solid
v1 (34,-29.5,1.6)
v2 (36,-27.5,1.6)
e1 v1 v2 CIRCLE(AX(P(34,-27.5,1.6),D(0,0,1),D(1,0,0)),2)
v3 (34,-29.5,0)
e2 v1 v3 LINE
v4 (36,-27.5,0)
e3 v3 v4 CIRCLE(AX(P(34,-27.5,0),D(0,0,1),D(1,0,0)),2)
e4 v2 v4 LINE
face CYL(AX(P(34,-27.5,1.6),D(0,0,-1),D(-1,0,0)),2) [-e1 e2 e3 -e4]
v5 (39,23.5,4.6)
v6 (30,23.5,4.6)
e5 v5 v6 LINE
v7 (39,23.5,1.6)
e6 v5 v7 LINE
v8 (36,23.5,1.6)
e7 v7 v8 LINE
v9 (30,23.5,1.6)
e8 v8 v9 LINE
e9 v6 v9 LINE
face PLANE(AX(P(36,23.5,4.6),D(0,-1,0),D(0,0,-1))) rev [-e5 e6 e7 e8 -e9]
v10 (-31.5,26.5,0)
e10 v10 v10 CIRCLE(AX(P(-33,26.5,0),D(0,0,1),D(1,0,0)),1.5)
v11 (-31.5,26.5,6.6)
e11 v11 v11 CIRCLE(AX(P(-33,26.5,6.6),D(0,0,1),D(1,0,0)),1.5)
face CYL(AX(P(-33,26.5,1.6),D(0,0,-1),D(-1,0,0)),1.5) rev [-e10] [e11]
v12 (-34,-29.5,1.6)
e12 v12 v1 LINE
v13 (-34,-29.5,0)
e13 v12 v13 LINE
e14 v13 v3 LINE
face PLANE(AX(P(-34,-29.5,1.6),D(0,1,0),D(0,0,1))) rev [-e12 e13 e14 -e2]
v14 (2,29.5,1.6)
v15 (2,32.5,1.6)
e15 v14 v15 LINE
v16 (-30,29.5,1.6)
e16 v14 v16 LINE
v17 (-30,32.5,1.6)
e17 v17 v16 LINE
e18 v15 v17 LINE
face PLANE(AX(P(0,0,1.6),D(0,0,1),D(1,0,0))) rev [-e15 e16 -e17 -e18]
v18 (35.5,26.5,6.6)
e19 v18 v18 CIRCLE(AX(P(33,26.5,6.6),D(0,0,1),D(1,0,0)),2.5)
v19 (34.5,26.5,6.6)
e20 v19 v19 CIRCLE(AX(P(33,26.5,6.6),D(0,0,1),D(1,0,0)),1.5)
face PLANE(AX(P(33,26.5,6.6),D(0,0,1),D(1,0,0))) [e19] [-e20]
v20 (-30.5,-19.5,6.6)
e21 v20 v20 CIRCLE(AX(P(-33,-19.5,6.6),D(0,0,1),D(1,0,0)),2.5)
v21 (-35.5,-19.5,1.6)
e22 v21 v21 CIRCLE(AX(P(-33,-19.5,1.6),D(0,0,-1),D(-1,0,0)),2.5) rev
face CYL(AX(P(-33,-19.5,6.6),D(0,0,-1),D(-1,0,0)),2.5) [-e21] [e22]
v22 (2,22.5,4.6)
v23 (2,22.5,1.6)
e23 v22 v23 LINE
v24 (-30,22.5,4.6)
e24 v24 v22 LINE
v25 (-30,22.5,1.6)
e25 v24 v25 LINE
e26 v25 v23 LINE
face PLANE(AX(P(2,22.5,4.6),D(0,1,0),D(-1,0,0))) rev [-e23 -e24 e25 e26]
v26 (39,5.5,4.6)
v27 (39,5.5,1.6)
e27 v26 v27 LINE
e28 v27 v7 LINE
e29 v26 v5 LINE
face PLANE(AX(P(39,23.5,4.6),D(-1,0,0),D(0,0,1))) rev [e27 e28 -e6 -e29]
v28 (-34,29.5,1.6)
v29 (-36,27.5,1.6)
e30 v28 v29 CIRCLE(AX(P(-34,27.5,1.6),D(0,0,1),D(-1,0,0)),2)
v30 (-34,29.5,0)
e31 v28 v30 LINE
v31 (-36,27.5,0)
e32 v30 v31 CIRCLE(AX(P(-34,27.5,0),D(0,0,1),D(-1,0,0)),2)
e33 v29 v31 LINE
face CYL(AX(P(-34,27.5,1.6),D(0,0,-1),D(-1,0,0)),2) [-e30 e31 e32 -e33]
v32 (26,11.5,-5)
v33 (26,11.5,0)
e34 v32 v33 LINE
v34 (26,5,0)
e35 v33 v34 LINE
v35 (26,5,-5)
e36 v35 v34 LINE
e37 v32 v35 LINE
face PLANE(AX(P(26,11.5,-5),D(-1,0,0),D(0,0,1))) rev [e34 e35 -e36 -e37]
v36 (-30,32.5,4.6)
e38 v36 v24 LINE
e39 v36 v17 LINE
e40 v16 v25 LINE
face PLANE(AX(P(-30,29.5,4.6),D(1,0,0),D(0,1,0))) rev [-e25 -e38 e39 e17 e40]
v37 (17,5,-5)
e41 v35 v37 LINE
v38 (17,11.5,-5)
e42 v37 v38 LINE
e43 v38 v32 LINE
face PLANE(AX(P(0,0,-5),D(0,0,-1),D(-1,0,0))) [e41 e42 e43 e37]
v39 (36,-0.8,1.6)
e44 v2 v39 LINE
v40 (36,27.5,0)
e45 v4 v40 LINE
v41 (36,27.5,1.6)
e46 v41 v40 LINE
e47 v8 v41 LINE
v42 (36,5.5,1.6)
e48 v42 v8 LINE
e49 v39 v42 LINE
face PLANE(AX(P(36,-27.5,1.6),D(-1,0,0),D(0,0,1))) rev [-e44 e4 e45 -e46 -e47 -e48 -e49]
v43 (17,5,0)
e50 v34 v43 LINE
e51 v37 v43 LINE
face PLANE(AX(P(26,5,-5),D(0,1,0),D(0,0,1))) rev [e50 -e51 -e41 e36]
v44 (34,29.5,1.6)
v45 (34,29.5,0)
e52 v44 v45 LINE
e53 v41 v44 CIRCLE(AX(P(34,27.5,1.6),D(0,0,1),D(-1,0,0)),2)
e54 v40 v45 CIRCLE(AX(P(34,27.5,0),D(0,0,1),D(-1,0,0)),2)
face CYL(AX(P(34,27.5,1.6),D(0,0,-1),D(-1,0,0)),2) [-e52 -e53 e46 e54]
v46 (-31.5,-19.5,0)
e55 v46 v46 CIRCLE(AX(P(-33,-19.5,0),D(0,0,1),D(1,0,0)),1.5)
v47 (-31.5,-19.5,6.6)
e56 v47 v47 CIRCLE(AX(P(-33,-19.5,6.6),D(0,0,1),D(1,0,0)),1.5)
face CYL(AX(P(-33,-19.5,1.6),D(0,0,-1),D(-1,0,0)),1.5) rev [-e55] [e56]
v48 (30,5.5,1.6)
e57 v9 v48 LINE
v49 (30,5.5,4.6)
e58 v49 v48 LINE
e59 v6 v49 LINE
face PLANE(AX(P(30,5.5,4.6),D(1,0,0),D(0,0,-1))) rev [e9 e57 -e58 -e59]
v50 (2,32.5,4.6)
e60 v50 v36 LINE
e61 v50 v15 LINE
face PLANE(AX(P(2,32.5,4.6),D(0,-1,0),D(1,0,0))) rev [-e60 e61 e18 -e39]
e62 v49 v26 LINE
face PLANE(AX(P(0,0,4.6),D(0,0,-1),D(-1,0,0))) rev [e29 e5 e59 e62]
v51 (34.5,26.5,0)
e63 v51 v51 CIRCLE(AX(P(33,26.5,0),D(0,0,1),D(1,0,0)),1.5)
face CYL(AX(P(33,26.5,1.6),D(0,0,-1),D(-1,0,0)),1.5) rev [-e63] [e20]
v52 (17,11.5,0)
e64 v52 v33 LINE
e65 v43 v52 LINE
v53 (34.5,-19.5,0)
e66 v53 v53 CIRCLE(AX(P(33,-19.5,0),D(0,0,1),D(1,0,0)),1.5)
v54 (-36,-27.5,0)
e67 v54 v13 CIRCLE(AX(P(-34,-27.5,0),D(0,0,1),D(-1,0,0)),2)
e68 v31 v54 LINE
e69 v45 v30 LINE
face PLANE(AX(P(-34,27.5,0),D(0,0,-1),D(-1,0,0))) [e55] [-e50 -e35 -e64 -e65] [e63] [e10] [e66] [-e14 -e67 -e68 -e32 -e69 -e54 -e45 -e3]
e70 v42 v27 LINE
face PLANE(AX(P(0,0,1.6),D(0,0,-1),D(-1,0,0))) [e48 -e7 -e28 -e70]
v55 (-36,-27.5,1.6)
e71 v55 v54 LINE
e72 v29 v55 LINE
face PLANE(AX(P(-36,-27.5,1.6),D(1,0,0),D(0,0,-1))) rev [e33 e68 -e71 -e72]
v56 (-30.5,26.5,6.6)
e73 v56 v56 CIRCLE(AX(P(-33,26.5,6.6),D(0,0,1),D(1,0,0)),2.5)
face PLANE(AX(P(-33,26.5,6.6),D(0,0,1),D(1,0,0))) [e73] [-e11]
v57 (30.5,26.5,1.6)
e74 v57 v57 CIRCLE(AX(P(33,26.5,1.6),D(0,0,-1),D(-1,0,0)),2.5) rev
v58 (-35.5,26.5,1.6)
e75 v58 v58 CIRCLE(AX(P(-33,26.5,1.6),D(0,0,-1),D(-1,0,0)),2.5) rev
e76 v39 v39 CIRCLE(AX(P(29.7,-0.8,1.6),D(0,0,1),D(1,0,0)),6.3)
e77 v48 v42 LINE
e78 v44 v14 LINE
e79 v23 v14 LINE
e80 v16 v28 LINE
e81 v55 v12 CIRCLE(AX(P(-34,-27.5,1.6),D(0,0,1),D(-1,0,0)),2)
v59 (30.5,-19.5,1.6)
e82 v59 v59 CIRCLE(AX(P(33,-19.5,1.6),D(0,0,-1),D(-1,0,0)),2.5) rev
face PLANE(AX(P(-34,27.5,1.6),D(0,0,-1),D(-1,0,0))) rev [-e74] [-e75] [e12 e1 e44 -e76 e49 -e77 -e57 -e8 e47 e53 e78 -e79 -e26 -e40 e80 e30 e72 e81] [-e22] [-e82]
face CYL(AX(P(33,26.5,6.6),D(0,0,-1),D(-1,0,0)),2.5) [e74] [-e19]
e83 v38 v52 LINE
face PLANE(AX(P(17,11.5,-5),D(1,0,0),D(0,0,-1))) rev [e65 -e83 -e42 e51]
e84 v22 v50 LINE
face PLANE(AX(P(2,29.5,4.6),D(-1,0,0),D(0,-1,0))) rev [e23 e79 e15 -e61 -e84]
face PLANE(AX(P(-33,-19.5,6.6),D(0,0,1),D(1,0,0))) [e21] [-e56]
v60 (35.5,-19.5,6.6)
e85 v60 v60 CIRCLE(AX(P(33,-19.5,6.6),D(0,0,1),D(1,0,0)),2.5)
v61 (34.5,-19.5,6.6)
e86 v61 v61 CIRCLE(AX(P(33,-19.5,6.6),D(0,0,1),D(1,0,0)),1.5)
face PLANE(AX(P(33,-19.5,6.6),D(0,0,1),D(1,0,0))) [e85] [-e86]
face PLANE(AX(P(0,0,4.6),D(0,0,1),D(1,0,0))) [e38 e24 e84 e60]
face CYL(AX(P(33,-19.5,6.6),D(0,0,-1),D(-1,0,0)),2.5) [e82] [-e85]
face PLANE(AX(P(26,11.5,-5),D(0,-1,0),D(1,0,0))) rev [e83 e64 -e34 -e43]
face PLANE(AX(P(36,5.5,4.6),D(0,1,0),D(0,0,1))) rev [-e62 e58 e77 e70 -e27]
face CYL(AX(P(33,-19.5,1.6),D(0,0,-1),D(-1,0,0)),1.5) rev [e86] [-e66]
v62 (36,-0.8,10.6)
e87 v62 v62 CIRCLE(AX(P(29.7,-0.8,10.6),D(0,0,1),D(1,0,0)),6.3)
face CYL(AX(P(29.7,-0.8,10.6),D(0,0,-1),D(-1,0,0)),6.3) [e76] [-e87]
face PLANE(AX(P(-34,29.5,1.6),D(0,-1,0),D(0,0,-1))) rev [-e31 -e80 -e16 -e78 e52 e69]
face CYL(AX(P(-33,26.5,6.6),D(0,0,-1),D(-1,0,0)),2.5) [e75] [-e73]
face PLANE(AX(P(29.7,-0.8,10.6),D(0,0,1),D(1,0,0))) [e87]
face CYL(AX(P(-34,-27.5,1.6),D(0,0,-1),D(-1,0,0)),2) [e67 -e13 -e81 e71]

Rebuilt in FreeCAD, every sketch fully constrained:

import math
import FreeCAD as App
import Part
import Sketcher

V = App.Vector

doc = App.newDocument("Part")
body = doc.addObject("PartDesign::Body", "Body")

sketch1 = body.newObject("Sketcher::SketchObject", "Sketch")
sketch1.AttachmentSupport = (doc.getObject("XY_Plane"), [""])
sketch1.MapMode = "FlatFace"
sketch1.addGeometry(Part.LineSegment(V(-34, -29.5, 0), V(34, -29.5, 0)), False)
sketch1.addGeometry(Part.ArcOfCircle(Part.Circle(V(34, -27.5, 0), V(0, 0, 1), 2), math.radians(-90), math.radians(0)), False)
sketch1.addGeometry(Part.LineSegment(V(36, -27.5, 0), V(36, 27.5, 0)), False)
sketch1.addGeometry(Part.ArcOfCircle(Part.Circle(V(34, 27.5, 0), V(0, 0, 1), 2), math.radians(0), math.radians(90)), False)
sketch1.addGeometry(Part.LineSegment(V(34, 29.5, 0), V(-34, 29.5, 0)), False)
sketch1.addGeometry(Part.ArcOfCircle(Part.Circle(V(-34, 27.5, 0), V(0, 0, 1), 2), math.radians(90), math.radians(180)), False)
sketch1.addGeometry(Part.LineSegment(V(-36, 27.5, 0), V(-36, -27.5, 0)), False)
sketch1.addGeometry(Part.ArcOfCircle(Part.Circle(V(-34, -27.5, 0), V(0, 0, 1), 2), math.radians(-180), math.radians(-90)), False)
sketch1.addGeometry(Part.Circle(V(-33, -19.5, 0), V(0, 0, 1), 1.5), False)
sketch1.addGeometry(Part.Circle(V(33, -19.5, 0), V(0, 0, 1), 1.5), False)
sketch1.addGeometry(Part.Circle(V(-33, 26.5, 0), V(0, 0, 1), 1.5), False)
sketch1.addGeometry(Part.Circle(V(33, 26.5, 0), V(0, 0, 1), 1.5), False)
sketch1.addConstraint(Sketcher.Constraint("Tangent", 0, 2, 1, 1))
sketch1.addConstraint(Sketcher.Constraint("Tangent", 1, 2, 2, 1))
sketch1.addConstraint(Sketcher.Constraint("Tangent", 2, 2, 3, 1))
sketch1.addConstraint(Sketcher.Constraint("Tangent", 3, 2, 4, 1))
sketch1.addConstraint(Sketcher.Constraint("Tangent", 4, 2, 5, 1))
sketch1.addConstraint(Sketcher.Constraint("Tangent", 5, 2, 6, 1))
sketch1.addConstraint(Sketcher.Constraint("Tangent", 6, 2, 7, 1))
sketch1.addConstraint(Sketcher.Constraint("Tangent", 7, 2, 0, 1))
sketch1.addConstraint(Sketcher.Constraint("Horizontal", 0))
sketch1.addConstraint(Sketcher.Constraint("Vertical", 2))
sketch1.addConstraint(Sketcher.Constraint("Horizontal", 4))
sketch1.addConstraint(Sketcher.Constraint("Vertical", 6))
sketch1.addConstraint(Sketcher.Constraint("Equal", 1, 3))
sketch1.addConstraint(Sketcher.Constraint("Equal", 3, 5))
sketch1.addConstraint(Sketcher.Constraint("Equal", 5, 7))
sketch1.addConstraint(Sketcher.Constraint("Equal", 8, 9))
sketch1.addConstraint(Sketcher.Constraint("Equal", 9, 10))
sketch1.addConstraint(Sketcher.Constraint("Equal", 10, 11))
sketch1.addConstraint(Sketcher.Constraint("Symmetric", 1, 3, 5, 3, -1, 1))
sketch1.addConstraint(Sketcher.Constraint("Symmetric", 8, 3, 9, 3, -2))
sketch1.addConstraint(Sketcher.Constraint("Symmetric", 10, 3, 11, 3, -2))
sketch1.addConstraint(Sketcher.Constraint("Vertical", 8, 3, 10, 3))
sketch1.addConstraint(Sketcher.Constraint("Diameter", 8, 3.0))
sketch1.addConstraint(Sketcher.Constraint("Radius", 1, 2.0))
sketch1.addConstraint(Sketcher.Constraint("DistanceX", 0, 1, 0, 2, 68.0))
sketch1.addConstraint(Sketcher.Constraint("DistanceY", 2, 1, 2, 2, 55.0))
sketch1.addConstraint(Sketcher.Constraint("DistanceX", 8, 3, -1, 1, 33.0))
sketch1.addConstraint(Sketcher.Constraint("DistanceY", 7, 3, 8, 3, 8.0))
sketch1.addConstraint(Sketcher.Constraint("DistanceY", 10, 3, 5, 3, 1.0))
pad1 = body.newObject("PartDesign::Pad", "Pad")
pad1.Profile = sketch1
pad1.Length = 1.6

sketch2 = body.newObject("Sketcher::SketchObject", "Sketch001")
sketch2.AttachmentSupport = (doc.getObject("XY_Plane"), [""])
sketch2.MapMode = "FlatFace"
sketch2.AttachmentOffset = App.Placement(V(0, 0, 1.6), App.Rotation())
sketch2.addGeometry(Part.Circle(V(33, 26.5, 0), V(0, 0, 1), 2.5), False)
sketch2.addGeometry(Part.Circle(V(33, 26.5, 0), V(0, 0, 1), 1.5), False)
sketch2.addGeometry(Part.Circle(V(-33, 26.5, 0), V(0, 0, 1), 2.5), False)
sketch2.addGeometry(Part.Circle(V(-33, 26.5, 0), V(0, 0, 1), 1.5), False)
sketch2.addGeometry(Part.Circle(V(-33, -19.5, 0), V(0, 0, 1), 2.5), False)
sketch2.addGeometry(Part.Circle(V(-33, -19.5, 0), V(0, 0, 1), 1.5), False)
sketch2.addGeometry(Part.Circle(V(33, -19.5, 0), V(0, 0, 1), 2.5), False)
sketch2.addGeometry(Part.Circle(V(33, -19.5, 0), V(0, 0, 1), 1.5), False)
sketch2.addConstraint(Sketcher.Constraint("Coincident", 1, 3, 0, 3))
sketch2.addConstraint(Sketcher.Constraint("Coincident", 3, 3, 2, 3))
sketch2.addConstraint(Sketcher.Constraint("Coincident", 5, 3, 4, 3))
sketch2.addConstraint(Sketcher.Constraint("Coincident", 7, 3, 6, 3))
sketch2.addConstraint(Sketcher.Constraint("Equal", 0, 2))
sketch2.addConstraint(Sketcher.Constraint("Equal", 1, 3))
sketch2.addConstraint(Sketcher.Constraint("Equal", 2, 4))
sketch2.addConstraint(Sketcher.Constraint("Equal", 3, 5))
sketch2.addConstraint(Sketcher.Constraint("Equal", 4, 6))
sketch2.addConstraint(Sketcher.Constraint("Equal", 5, 7))
sketch2.addConstraint(Sketcher.Constraint("Symmetric", 0, 3, 2, 3, -2))
sketch2.addConstraint(Sketcher.Constraint("Symmetric", 4, 3, 6, 3, -2))
sketch2.addConstraint(Sketcher.Constraint("Vertical", 3, 3, 4, 3))
sketch2.addConstraint(Sketcher.Constraint("Diameter", 0, 5.0))
sketch2.addConstraint(Sketcher.Constraint("Diameter", 1, 3.0))
sketch2.addConstraint(Sketcher.Constraint("DistanceX", -1, 1, 0, 3, 33.0))
sketch2.addConstraint(Sketcher.Constraint("DistanceY", 4, 3, 2, 3, 46.0))
sketch2.addConstraint(Sketcher.Constraint("DistanceY", -1, 1, 0, 3, 26.5))
pad2 = body.newObject("PartDesign::Pad", "Pad001")
pad2.Profile = sketch2
pad2.Length = 5

sketch3 = body.newObject("Sketcher::SketchObject", "Sketch002")
sketch3.AttachmentSupport = (doc.getObject("XY_Plane"), [""])
sketch3.MapMode = "FlatFace"
sketch3.AttachmentOffset = App.Placement(V(0, 0, 1.6), App.Rotation())
sketch3.addGeometry(Part.Circle(V(30, -1, 0), V(0, 0, 1), 6), False)
sketch3.addConstraint(Sketcher.Constraint("Diameter", 0, 12.6))
sketch3.addConstraint(Sketcher.Constraint("DistanceX", -1, 1, 0, 3, 29.7))
sketch3.addConstraint(Sketcher.Constraint("DistanceY", 0, 3, -1, 1, 0.8))
pad3 = body.newObject("PartDesign::Pad", "Pad002")
pad3.Profile = sketch3
pad3.Length = 9

sketch4 = body.newObject("Sketcher::SketchObject", "Sketch003")
sketch4.AttachmentSupport = (doc.getObject("XY_Plane"), [""])
sketch4.MapMode = "FlatFace"
sketch4.AttachmentOffset = App.Placement(V(0, 0, 1.6), App.Rotation())
sketch4.addGeometry(Part.LineSegment(V(30, 6, 0), V(39, 6, 0)), False)
sketch4.addGeometry(Part.LineSegment(V(39, 6, 0), V(39, 24, 0)), False)
sketch4.addGeometry(Part.LineSegment(V(39, 24, 0), V(30, 24, 0)), False)
sketch4.addGeometry(Part.LineSegment(V(30, 24, 0), V(30, 6, 0)), False)
sketch4.addGeometry(Part.LineSegment(V(2, 22, 0), V(2, 32, 0)), False)
sketch4.addGeometry(Part.LineSegment(V(2, 32, 0), V(-30, 32, 0)), False)
sketch4.addGeometry(Part.LineSegment(V(-30, 32, 0), V(-30, 22, 0)), False)
sketch4.addGeometry(Part.LineSegment(V(-30, 22, 0), V(2, 22, 0)), False)
sketch4.addConstraint(Sketcher.Constraint("Coincident", 0, 2, 1, 1))
sketch4.addConstraint(Sketcher.Constraint("Coincident", 1, 2, 2, 1))
sketch4.addConstraint(Sketcher.Constraint("Coincident", 2, 2, 3, 1))
sketch4.addConstraint(Sketcher.Constraint("Coincident", 3, 2, 0, 1))
sketch4.addConstraint(Sketcher.Constraint("Coincident", 4, 2, 5, 1))
sketch4.addConstraint(Sketcher.Constraint("Coincident", 5, 2, 6, 1))
sketch4.addConstraint(Sketcher.Constraint("Coincident", 6, 2, 7, 1))
sketch4.addConstraint(Sketcher.Constraint("Coincident", 7, 2, 4, 1))
sketch4.addConstraint(Sketcher.Constraint("Horizontal", 0))
sketch4.addConstraint(Sketcher.Constraint("Vertical", 1))
sketch4.addConstraint(Sketcher.Constraint("Horizontal", 2))
sketch4.addConstraint(Sketcher.Constraint("Vertical", 3))
sketch4.addConstraint(Sketcher.Constraint("Vertical", 4))
sketch4.addConstraint(Sketcher.Constraint("Horizontal", 5))
sketch4.addConstraint(Sketcher.Constraint("Vertical", 6))
sketch4.addConstraint(Sketcher.Constraint("Horizontal", 7))
sketch4.addConstraint(Sketcher.Constraint("DistanceX", 0, 1, 0, 2, 9.0))
sketch4.addConstraint(Sketcher.Constraint("DistanceX", 5, 2, 5, 1, 32.0))
sketch4.addConstraint(Sketcher.Constraint("DistanceY", 1, 1, 1, 2, 18.0))
sketch4.addConstraint(Sketcher.Constraint("DistanceY", 4, 1, 4, 2, 10.0))
sketch4.addConstraint(Sketcher.Constraint("DistanceX", -1, 1, 0, 2, 39.0))
sketch4.addConstraint(Sketcher.Constraint("DistanceX", -1, 1, 4, 2, 2.0))
sketch4.addConstraint(Sketcher.Constraint("DistanceY", 2, 2, 4, 2, 9.0))
sketch4.addConstraint(Sketcher.Constraint("DistanceY", -1, 1, 0, 2, 5.5))
pad4 = body.newObject("PartDesign::Pad", "Pad003")
pad4.Profile = sketch4
pad4.Length = 3

sketch5 = body.newObject("Sketcher::SketchObject", "Sketch004")
sketch5.AttachmentSupport = (doc.getObject("XY_Plane"), [""])
sketch5.MapMode = "FlatFace"
sketch5.addGeometry(Part.LineSegment(V(26, 12, 0), V(26, 5, 0)), False)
sketch5.addGeometry(Part.LineSegment(V(26, 5, 0), V(17, 5, 0)), False)
sketch5.addGeometry(Part.LineSegment(V(17, 5, 0), V(17, 12, 0)), False)
sketch5.addGeometry(Part.LineSegment(V(17, 12, 0), V(26, 12, 0)), False)
sketch5.addConstraint(Sketcher.Constraint("Coincident", 0, 2, 1, 1))
sketch5.addConstraint(Sketcher.Constraint("Coincident", 1, 2, 2, 1))
sketch5.addConstraint(Sketcher.Constraint("Coincident", 2, 2, 3, 1))
sketch5.addConstraint(Sketcher.Constraint("Coincident", 3, 2, 0, 1))
sketch5.addConstraint(Sketcher.Constraint("Vertical", 0))
sketch5.addConstraint(Sketcher.Constraint("Horizontal", 1))
sketch5.addConstraint(Sketcher.Constraint("Vertical", 2))
sketch5.addConstraint(Sketcher.Constraint("Horizontal", 3))
sketch5.addConstraint(Sketcher.Constraint("DistanceX", 1, 2, 1, 1, 9.0))
sketch5.addConstraint(Sketcher.Constraint("DistanceY", 0, 2, 0, 1, 6.5))
sketch5.addConstraint(Sketcher.Constraint("DistanceX", -1, 1, 0, 2, 26.0))
sketch5.addConstraint(Sketcher.Constraint("DistanceY", -1, 1, 0, 2, 5.0))
pad5 = body.newObject("PartDesign::Pad", "Pad004")
pad5.Profile = sketch5
pad5.Length = 5
pad5.Reversed = True

doc.recompute()
